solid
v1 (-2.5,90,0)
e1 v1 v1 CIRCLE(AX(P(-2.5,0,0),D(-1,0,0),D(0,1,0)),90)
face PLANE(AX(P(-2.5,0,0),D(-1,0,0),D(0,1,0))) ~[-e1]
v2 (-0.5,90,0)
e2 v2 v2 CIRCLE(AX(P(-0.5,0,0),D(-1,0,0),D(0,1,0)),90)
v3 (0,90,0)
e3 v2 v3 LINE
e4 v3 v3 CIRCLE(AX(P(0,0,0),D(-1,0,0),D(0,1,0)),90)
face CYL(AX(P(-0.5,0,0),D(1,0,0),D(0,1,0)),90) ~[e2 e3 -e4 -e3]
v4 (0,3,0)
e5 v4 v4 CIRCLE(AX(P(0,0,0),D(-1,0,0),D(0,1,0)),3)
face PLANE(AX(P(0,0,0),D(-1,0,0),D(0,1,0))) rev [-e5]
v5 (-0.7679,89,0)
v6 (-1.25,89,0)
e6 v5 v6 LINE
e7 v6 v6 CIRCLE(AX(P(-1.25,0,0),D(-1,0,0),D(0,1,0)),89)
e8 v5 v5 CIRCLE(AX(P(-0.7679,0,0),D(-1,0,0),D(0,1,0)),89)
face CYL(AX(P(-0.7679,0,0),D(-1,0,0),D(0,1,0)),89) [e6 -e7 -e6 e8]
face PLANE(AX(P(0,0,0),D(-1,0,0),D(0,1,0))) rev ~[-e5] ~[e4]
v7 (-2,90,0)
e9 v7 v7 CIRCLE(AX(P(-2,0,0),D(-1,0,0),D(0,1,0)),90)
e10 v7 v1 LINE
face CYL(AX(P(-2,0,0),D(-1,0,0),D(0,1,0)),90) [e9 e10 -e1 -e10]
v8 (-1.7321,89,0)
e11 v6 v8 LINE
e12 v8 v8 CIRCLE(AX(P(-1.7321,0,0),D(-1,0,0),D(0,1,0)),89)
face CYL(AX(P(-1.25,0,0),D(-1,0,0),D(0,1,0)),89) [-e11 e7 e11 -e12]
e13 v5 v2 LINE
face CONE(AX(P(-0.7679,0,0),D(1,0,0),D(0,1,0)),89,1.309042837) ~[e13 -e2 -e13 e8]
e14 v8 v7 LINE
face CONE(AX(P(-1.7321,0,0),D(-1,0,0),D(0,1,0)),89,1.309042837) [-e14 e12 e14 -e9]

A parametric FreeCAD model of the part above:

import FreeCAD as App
import Part
import Sketcher
from FreeCAD import Vector

doc = App.newDocument("Part")
body = doc.addObject("PartDesign::Body", "Body")

# Sketch on XY plane
sketch1 = body.newObject("Sketcher::SketchObject", "Sketch")
sketch1.AttachmentSupport = (doc.getObject("XY_Plane"), [""])
sketch1.MapMode = "FlatFace"
sketch1.addGeometry([
    Part.LineSegment(Vector(-2.5, 0, 0), Vector(0, 0, 0)),  # 0
    Part.LineSegment(Vector(0, 0, 0), Vector(0, 90, 0)),  # 1
    Part.LineSegment(Vector(0, 90, 0), Vector(-0.5, 90, 0)),  # 2
    Part.LineSegment(Vector(-0.5, 90, 0), Vector(-0.7679, 89, 0)),  # 3
    Part.LineSegment(Vector(-0.7679, 89, 0), Vector(-1.7321, 89, 0)),  # 4
    Part.LineSegment(Vector(-1.7321, 89, 0), Vector(-2, 90, 0)),  # 5
    Part.LineSegment(Vector(-2, 90, 0), Vector(-2.5, 90, 0)),  # 6
    Part.LineSegment(Vector(-2.5, 90, 0), Vector(-2.5, 0, 0)),  # 7
], False)
sketch1.addConstraint([
    Sketcher.Constraint("Coincident", 0, 2, 1, 1),
    Sketcher.Constraint("Coincident", 1, 2, 2, 1),
    Sketcher.Constraint("Coincident", 2, 2, 3, 1),
    Sketcher.Constraint("Coincident", 3, 2, 4, 1),
    Sketcher.Constraint("Coincident", 4, 2, 5, 1),
    Sketcher.Constraint("Coincident", 5, 2, 6, 1),
    Sketcher.Constraint("Coincident", 6, 2, 7, 1),
    Sketcher.Constraint("Coincident", 7, 2, 0, 1),
    Sketcher.Constraint("Horizontal", 0),
    Sketcher.Constraint("Vertical", 1),
    Sketcher.Constraint("Horizontal", 2),
    Sketcher.Constraint("Horizontal", 4),
    Sketcher.Constraint("Horizontal", 6),
    Sketcher.Constraint("Vertical", 7),
    Sketcher.Constraint("Coincident", 0, 2, -1, 1),
    Sketcher.Constraint("Horizontal", 2, 2, 5, 2),
    Sketcher.Constraint("Equal", 2, 6),
    Sketcher.Constraint("Equal", 3, 5),
    Sketcher.Constraint("DistanceY", 1, 1, 1, 2, 90.0),
    Sketcher.Constraint("DistanceX", 0, 1, 0, 2, 2.5),
    Sketcher.Constraint("DistanceY", 3, 2, 2, 2, 1.0),
    Sketcher.Constraint("DistanceX", 2, 2, 2, 1, 0.5),
    Sketcher.Constraint("DistanceX", 4, 2, 4, 1, 0.9642),
])
revolution = body.newObject("PartDesign::Revolution", "Revolution")
revolution.Profile = sketch1
revolution.ReferenceAxis = (sketch1, ["H_Axis"])
revolution.Angle = 360

doc.recompute()
